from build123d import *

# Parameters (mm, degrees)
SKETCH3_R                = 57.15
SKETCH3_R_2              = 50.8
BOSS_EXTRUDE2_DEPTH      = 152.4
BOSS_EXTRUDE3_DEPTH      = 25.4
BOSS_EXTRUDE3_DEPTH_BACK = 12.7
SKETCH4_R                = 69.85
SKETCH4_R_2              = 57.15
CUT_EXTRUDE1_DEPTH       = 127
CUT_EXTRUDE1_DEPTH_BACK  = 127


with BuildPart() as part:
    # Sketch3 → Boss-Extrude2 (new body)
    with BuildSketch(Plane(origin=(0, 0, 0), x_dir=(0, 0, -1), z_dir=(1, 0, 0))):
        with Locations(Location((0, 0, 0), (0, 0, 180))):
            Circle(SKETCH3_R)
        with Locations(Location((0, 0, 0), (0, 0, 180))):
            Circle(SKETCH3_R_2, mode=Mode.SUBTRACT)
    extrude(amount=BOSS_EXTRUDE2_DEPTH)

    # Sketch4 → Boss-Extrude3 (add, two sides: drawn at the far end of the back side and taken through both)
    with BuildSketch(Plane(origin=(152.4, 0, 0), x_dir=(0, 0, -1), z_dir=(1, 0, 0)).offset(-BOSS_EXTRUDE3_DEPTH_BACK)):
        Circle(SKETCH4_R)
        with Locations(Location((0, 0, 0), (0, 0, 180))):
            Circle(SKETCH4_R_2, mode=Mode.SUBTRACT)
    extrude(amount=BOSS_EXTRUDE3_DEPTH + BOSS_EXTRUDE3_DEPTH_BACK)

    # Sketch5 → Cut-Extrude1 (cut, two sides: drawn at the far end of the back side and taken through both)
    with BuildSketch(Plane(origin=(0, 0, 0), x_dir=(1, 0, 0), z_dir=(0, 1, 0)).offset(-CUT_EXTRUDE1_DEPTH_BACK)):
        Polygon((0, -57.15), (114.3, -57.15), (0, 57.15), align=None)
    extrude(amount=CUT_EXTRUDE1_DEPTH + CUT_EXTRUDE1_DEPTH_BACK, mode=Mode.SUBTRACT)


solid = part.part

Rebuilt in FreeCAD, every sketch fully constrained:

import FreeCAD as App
import Part
import Sketcher
Q = App.Units.Quantity

doc = App.newDocument("Part")
body = doc.addObject("PartDesign::Body", "Body")

sketch1 = body.newObject("Sketcher::SketchObject", "Sketch")
sketch1.AttachmentSupport = (doc.getObject("YZ_Plane"), [""])
sketch1.MapMode = "FlatFace"
sketch1.addGeometry([
    Part.Circle(App.Vector(0, 0, 0), App.Vector(0, 0, 1), 57),
    Part.Circle(App.Vector(0, 0, 0), App.Vector(0, 0, 1), 51),
], False)
sketch1.addConstraint([
    Sketcher.Constraint("Coincident", 0, 3, -1, 1),
    Sketcher.Constraint("Coincident", 1, 3, -1, 1),
    Sketcher.Constraint("Diameter", 1, Q("4 in")),
    Sketcher.Constraint("Diameter", 0, Q("4.5 in")),
])
pad1 = body.newObject("PartDesign::Pad", "Pad")
pad1.Profile = sketch1
pad1.Length = Q("6 in")

sketch2 = body.newObject("Sketcher::SketchObject", "Sketch001")
sketch2.AttachmentSupport = (doc.getObject("YZ_Plane"), [""])
sketch2.MapMode = "FlatFace"
sketch2.AttachmentOffset = App.Placement(App.Vector(0, 0, 6 * 25.4), App.Rotation())
sketch2.addGeometry([
    Part.Circle(App.Vector(0, 0, 0), App.Vector(0, 0, 1), 70),
    Part.Circle(App.Vector(0, 0, 0), App.Vector(0, 0, 1), 57),
], False)
sketch2.addConstraint([
    Sketcher.Constraint("Coincident", 0, 3, -1, 1),
    Sketcher.Constraint("Coincident", 1, 3, -1, 1),
    Sketcher.Constraint("Diameter", 0, Q("5.5 in")),
    Sketcher.Constraint("Diameter", 1, Q("4.5 in")),
])
pad2 = body.newObject("PartDesign::Pad", "Pad001")
pad2.Profile = sketch2
pad2.Type = "TwoLengths"
pad2.Length = Q("1 in")
pad2.Length2 = Q("0.5 in")

sketch3 = body.newObject("Sketcher::SketchObject", "Sketch002")
sketch3.AttachmentSupport = (doc.getObject("XZ_Plane"), [""])
sketch3.MapMode = "FlatFace"
sketch3.addGeometry([
    Part.LineSegment(App.Vector(0, 57, 0), App.Vector(114, 57, 0)),
    Part.LineSegment(App.Vector(114, 57, 0), App.Vector(0, -57, 0)),
    Part.LineSegment(App.Vector(0, -57, 0), App.Vector(0, 57, 0)),
], False)
sketch3.addConstraint([
    Sketcher.Constraint("Coincident", 0, 2, 1, 1),
    Sketcher.Constraint("Coincident", 1, 2, 2, 1),
    Sketcher.Constraint("Coincident", 2, 2, 0, 1),
    Sketcher.Constraint("Horizontal", 0),
    Sketcher.Constraint("Vertical", 2),
    Sketcher.Constraint("Symmetric", 1, 2, 2, 2, -1, 1),
    Sketcher.Constraint("Equal", 0, 2),
    Sketcher.Constraint("DistanceX", 0, 1, 0, 2, Q("4.5 in")),
])
pocket1 = body.newObject("PartDesign::Pocket", "Pocket")
pocket1.Profile = sketch3
pocket1.Type = "ThroughAll"
pocket1.Midplane = True

doc.recompute()
